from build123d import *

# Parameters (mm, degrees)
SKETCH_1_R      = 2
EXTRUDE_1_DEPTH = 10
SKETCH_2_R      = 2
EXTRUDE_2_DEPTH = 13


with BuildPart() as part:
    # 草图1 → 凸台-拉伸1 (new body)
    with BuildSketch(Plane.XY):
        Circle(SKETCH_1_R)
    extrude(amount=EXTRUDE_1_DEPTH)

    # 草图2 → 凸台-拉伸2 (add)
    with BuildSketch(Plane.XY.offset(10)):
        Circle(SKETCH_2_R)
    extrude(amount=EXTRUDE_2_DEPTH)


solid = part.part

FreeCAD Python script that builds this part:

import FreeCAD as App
import Part
import Sketcher

doc = App.newDocument("Part")
body = doc.addObject("PartDesign::Body", "Body")

# Sketch on XY plane
sketch1 = body.newObject("Sketcher::SketchObject", "Sketch")
sketch1.AttachmentSupport = (doc.getObject("XY_Plane"), [""])
sketch1.MapMode = "FlatFace"
sketch1.addGeometry(Part.Circle(App.Vector(0, 0, 0), App.Vector(0, 0, 1), 2), False)
sketch1.addConstraint([
    Sketcher.Constraint("Coincident", 0, 3, -1, 1),
    Sketcher.Constraint("Diameter", 0, 4.0),
])
pad1 = body.newObject("PartDesign::Pad", "Pad")
pad1.Profile = sketch1
pad1.Length = 10

# Sketch on XY plane
sketch2 = body.newObject("Sketcher::SketchObject", "Sketch001")
sketch2.AttachmentSupport = (doc.getObject("XY_Plane"), [""])
sketch2.MapMode = "FlatFace"
sketch2.AttachmentOffset = App.Placement(App.Vector(0, 0, 10), App.Rotation())
sketch2.addGeometry(Part.Circle(App.Vector(0, 0, 0), App.Vector(0, 0, 1), 2), False)
sketch2.addConstraint([
    Sketcher.Constraint("Coincident", 0, 3, -1, 1),
    Sketcher.Constraint("Diameter", 0, 4.0),
])
pad2 = body.newObject("PartDesign::Pad", "Pad001")
pad2.Profile = sketch2
pad2.Length = 13

doc.recompute()
